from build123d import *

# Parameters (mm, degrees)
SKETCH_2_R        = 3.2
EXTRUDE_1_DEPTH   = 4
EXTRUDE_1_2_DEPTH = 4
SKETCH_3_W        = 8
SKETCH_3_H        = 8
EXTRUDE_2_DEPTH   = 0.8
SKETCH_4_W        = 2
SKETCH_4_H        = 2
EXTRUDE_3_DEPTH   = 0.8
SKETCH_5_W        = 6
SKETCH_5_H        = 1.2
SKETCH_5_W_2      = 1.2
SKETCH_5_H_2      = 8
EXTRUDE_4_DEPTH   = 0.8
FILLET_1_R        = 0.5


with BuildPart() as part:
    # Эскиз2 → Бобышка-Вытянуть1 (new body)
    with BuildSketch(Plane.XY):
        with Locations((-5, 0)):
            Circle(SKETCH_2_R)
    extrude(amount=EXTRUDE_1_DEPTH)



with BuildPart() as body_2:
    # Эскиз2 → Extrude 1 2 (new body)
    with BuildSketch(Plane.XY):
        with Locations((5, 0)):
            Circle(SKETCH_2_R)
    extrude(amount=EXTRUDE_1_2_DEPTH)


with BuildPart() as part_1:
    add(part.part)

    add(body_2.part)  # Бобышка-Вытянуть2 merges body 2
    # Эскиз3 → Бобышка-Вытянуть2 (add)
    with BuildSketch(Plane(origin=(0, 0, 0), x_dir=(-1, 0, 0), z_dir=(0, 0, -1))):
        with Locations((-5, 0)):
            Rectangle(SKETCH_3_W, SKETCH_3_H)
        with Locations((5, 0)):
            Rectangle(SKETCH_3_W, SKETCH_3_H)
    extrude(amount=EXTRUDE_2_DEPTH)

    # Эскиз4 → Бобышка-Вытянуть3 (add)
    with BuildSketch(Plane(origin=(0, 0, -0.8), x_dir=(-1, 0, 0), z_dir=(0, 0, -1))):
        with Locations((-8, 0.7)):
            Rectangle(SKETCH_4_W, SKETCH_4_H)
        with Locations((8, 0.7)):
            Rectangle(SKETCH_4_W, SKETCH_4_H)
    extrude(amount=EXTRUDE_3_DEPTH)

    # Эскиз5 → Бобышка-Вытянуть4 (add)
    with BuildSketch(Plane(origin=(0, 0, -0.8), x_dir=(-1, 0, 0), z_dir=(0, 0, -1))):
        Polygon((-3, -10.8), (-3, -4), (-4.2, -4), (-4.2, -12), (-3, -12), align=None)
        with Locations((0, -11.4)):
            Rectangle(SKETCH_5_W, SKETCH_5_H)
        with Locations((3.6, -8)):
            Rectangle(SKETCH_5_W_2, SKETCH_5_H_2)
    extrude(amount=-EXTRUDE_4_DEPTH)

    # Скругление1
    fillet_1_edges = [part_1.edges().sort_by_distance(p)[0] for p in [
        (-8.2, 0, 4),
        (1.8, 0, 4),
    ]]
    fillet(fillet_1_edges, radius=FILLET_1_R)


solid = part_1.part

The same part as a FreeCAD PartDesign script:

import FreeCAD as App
import Part
import Sketcher

V = App.Vector


def edges_at(feature, points):
    """Names of the edges that pass closest to the given points."""
    edges = feature.Shape.Edges
    near = lambda p: min(range(len(edges)), key=lambda i: edges[i].distToShape(Part.Vertex(*p))[0])
    return sorted({f"Edge{near(p) + 1}" for p in points})


def add_polygon(sketch, points):
    """Adds a closed chain of lines whose ends are joined by coincident constraints."""
    first, n = sketch.GeometryCount, len(points)
    for a, b in zip(points, points[1:] + points[:1]):
        sketch.addGeometry(Part.LineSegment(App.Vector(*a, 0), App.Vector(*b, 0)), False)
    for i in range(n):
        sketch.addConstraint(Sketcher.Constraint("Coincident", first + i, 2, first + (i + 1) % n, 1))

doc = App.newDocument("Part")
params = doc.addObject("Spreadsheet::Sheet", "Params")
for row, (alias, value) in enumerate([
    ("sketch1_diameter", "6.4 mm"),
    ("pad1_length", "4 mm"),
    ("sketch2_diameter", "6.4 mm"),
    ("pad2_length", "4 mm"),
    ("sketch3_width", "8 mm"),
    ("pad3_length", "0.8 mm"),
    ("sketch4_width", "2 mm"),
    ("pad4_length", "0.8 mm"),
    ("sketch5_width", "6 mm"),
    ("sketch5_height", "8 mm"),
    ("sketch5_width2", "1.2 mm"),
    ("sketch5_height2", "6.8 mm"),
    ("pad5_length", "0.8 mm"),
    ("fillet_radius", "0.5 mm"),
], start=1):
    params.set(f"A{row}", alias)
    params.set(f"B{row}", "=" + value)
    params.setAlias(f"B{row}", alias)

body = doc.addObject("PartDesign::Body", "Body")

# Sketch on XY plane
sketch1 = body.newObject("Sketcher::SketchObject", "Sketch")
sketch1.AttachmentSupport = (doc.getObject("XY_Plane"), [""])
sketch1.MapMode = "FlatFace"
sketch1.addGeometry(Part.Circle(V(-5, 0, 0), V(0, 0, 1), 3.2), False)
sketch1.addConstraint(Sketcher.Constraint("PointOnObject", 0, 3, -1))
sketch1.addConstraint(Sketcher.Constraint("Diameter", 0, 6.4))
sketch1.addConstraint(Sketcher.Constraint("DistanceX", 0, 3, -1, 1, 5.0))
sketch1.setExpression("Constraints[1]", "Params.sketch1_diameter")
pad1 = body.newObject("PartDesign::Pad", "Pad")
pad1.Profile = sketch1
pad1.setExpression("Length", "Params.pad1_length")
body2 = doc.addObject("PartDesign::Body", "Body001")

# Sketch on XY plane
sketch2 = body2.newObject("Sketcher::SketchObject", "Sketch001")
sketch2.AttachmentSupport = (doc.getObject("XY_Plane001"), [""])
sketch2.MapMode = "FlatFace"
sketch2.addGeometry(Part.Circle(V(5, 0, 0), V(0, 0, 1), 3.2), False)
sketch2.addConstraint(Sketcher.Constraint("PointOnObject", 0, 3, -1))
sketch2.addConstraint(Sketcher.Constraint("Diameter", 0, 6.4))
sketch2.addConstraint(Sketcher.Constraint("DistanceX", -1, 1, 0, 3, 5.0))
sketch2.setExpression("Constraints[1]", "Params.sketch2_diameter")
pad2 = body2.newObject("PartDesign::Pad", "Pad001")
pad2.Profile = sketch2
pad2.setExpression("Length", "Params.pad2_length")
body.AllowCompound = True
doc.recompute()

boolean = body.newObject("PartDesign::Boolean", "Boolean")
boolean.Type = "Fuse"
boolean.addObjects([body2])

# Sketch on XY plane
sketch3 = body.newObject("Sketcher::SketchObject", "Sketch002")
sketch3.AttachmentSupport = (doc.getObject("XY_Plane"), [""])
sketch3.MapMode = "FlatFace"
add_polygon(sketch3, [(9, 4), (9, -4), (1, -4), (1, 4)])  # lines 0-3
add_polygon(sketch3, [(-1, 4), (-1, -4), (-9, -4), (-9, 4)])  # lines 4-7
sketch3.addConstraint(Sketcher.Constraint("Vertical", 0))
sketch3.addConstraint(Sketcher.Constraint("Horizontal", 1))
sketch3.addConstraint(Sketcher.Constraint("Vertical", 2))
sketch3.addConstraint(Sketcher.Constraint("Horizontal", 3))
sketch3.addConstraint(Sketcher.Constraint("Vertical", 4))
sketch3.addConstraint(Sketcher.Constraint("Horizontal", 5))
sketch3.addConstraint(Sketcher.Constraint("Vertical", 6))
sketch3.addConstraint(Sketcher.Constraint("Horizontal", 7))
sketch3.addConstraint(Sketcher.Constraint("Symmetric", 2, 2, 4, 2, -1, 1))
sketch3.addConstraint(Sketcher.Constraint("Symmetric", 0, 2, 6, 2, -1, 1))
sketch3.addConstraint(Sketcher.Constraint("Horizontal", 1, 2, 4, 2))
sketch3.addConstraint(Sketcher.Constraint("Equal", 7, 0))
sketch3.addConstraint(Sketcher.Constraint("DistanceX", 1, 2, 1, 1, 8.0))
sketch3.addConstraint(Sketcher.Constraint("DistanceX", -1, 1, 0, 2, 9.0))
sketch3.setExpression("Constraints[20]", "Params.sketch3_width")
pad3 = body.newObject("PartDesign::Pad", "Pad002")
pad3.Profile = sketch3
pad3.setExpression("Length", "Params.pad3_length")
pad3.Reversed = True

# Sketch on XY plane
sketch4 = body.newObject("Sketcher::SketchObject", "Sketch003")
sketch4.AttachmentSupport = (doc.getObject("XY_Plane"), [""])
sketch4.MapMode = "FlatFace"
sketch4.AttachmentOffset = App.Placement(V(0, 0, -0.8), App.Rotation())
add_polygon(sketch4, [(9, 1.7), (9, -0.3), (7, -0.3), (7, 1.7)])  # lines 0-3
add_polygon(sketch4, [(-7, 1.7), (-7, -0.3), (-9, -0.3), (-9, 1.7)])  # lines 4-7
sketch4.addConstraint(Sketcher.Constraint("Vertical", 0))
sketch4.addConstraint(Sketcher.Constraint("Horizontal", 1))
sketch4.addConstraint(Sketcher.Constraint("Vertical", 2))
sketch4.addConstraint(Sketcher.Constraint("Horizontal", 3))
sketch4.addConstraint(Sketcher.Constraint("Vertical", 4))
sketch4.addConstraint(Sketcher.Constraint("Horizontal", 5))
sketch4.addConstraint(Sketcher.Constraint("Vertical", 6))
sketch4.addConstraint(Sketcher.Constraint("Horizontal", 7))
sketch4.addConstraint(Sketcher.Constraint("Symmetric", 1, 2, 4, 2, -2))
sketch4.addConstraint(Sketcher.Constraint("Symmetric", 3, 2, 6, 2, -2))
sketch4.addConstraint(Sketcher.Constraint("Equal", 7, 0))
sketch4.addConstraint(Sketcher.Constraint("DistanceX", 1, 2, 1, 1, 2.0))
sketch4.addConstraint(Sketcher.Constraint("DistanceX", -1, 1, 0, 2, 9.0))
sketch4.addConstraint(Sketcher.Constraint("DistanceY", 0, 2, -1, 1, 0.3))
sketch4.setExpression("Constraints[19]", "Params.sketch4_width")
pad4 = body.newObject("PartDesign::Pad", "Pad003")
pad4.Profile = sketch4
pad4.setExpression("Length", "Params.pad4_length")
pad4.Reversed = True

# Sketch on XY plane
sketch5 = body.newObject("Sketcher::SketchObject", "Sketch004")
sketch5.AttachmentSupport = (doc.getObject("XY_Plane"), [""])
sketch5.MapMode = "FlatFace"
sketch5.AttachmentOffset = App.Placement(V(0, 0, -0.8), App.Rotation())
add_polygon(sketch5, [(3, -4), (4.2, -4), (4.2, -12), (-4.2, -12), (-4.2, -4), (-3, -4), (-3, -10.8), (3, -10.8)])  # lines 0-7
sketch5.addConstraint(Sketcher.Constraint("Horizontal", 0))
sketch5.addConstraint(Sketcher.Constraint("Vertical", 1))
sketch5.addConstraint(Sketcher.Constraint("Horizontal", 2))
sketch5.addConstraint(Sketcher.Constraint("Vertical", 3))
sketch5.addConstraint(Sketcher.Constraint("Horizontal", 4))
sketch5.addConstraint(Sketcher.Constraint("Vertical", 5))
sketch5.addConstraint(Sketcher.Constraint("Horizontal", 6))
sketch5.addConstraint(Sketcher.Constraint("Vertical", 7))
sketch5.addConstraint(Sketcher.Constraint("Symmetric", 0, 2, 3, 2, -2))
sketch5.addConstraint(Sketcher.Constraint("Equal", 0, 4))
sketch5.addConstraint(Sketcher.Constraint("DistanceX", 6, 1, 6, 2, 6.0))
sketch5.addConstraint(Sketcher.Constraint("DistanceY", 1, 2, 1, 1, 8.0))
sketch5.addConstraint(Sketcher.Constraint("DistanceX", 0, 1, 0, 2, 1.2))
sketch5.addConstraint(Sketcher.Constraint("DistanceY", 5, 2, 5, 1, 6.8))
sketch5.addConstraint(Sketcher.Constraint("DistanceY", 0, 2, -1, 1, 4.0))
sketch5.setExpression("Constraints[18]", "Params.sketch5_width")
sketch5.setExpression("Constraints[19]", "Params.sketch5_height")
sketch5.setExpression("Constraints[20]", "Params.sketch5_width2")
sketch5.setExpression("Constraints[21]", "Params.sketch5_height2")
pad5 = body.newObject("PartDesign::Pad", "Pad004")
pad5.Profile = sketch5
pad5.setExpression("Length", "Params.pad5_length")
doc.recompute()

fillet = body.newObject("PartDesign::Fillet", "Fillet")
fillet.Base = (pad5, edges_at(pad5, [(-8.2, 0, 4), (1.8, 0, 4)]))
fillet.setExpression("Radius", "Params.fillet_radius")

doc.recompute()
